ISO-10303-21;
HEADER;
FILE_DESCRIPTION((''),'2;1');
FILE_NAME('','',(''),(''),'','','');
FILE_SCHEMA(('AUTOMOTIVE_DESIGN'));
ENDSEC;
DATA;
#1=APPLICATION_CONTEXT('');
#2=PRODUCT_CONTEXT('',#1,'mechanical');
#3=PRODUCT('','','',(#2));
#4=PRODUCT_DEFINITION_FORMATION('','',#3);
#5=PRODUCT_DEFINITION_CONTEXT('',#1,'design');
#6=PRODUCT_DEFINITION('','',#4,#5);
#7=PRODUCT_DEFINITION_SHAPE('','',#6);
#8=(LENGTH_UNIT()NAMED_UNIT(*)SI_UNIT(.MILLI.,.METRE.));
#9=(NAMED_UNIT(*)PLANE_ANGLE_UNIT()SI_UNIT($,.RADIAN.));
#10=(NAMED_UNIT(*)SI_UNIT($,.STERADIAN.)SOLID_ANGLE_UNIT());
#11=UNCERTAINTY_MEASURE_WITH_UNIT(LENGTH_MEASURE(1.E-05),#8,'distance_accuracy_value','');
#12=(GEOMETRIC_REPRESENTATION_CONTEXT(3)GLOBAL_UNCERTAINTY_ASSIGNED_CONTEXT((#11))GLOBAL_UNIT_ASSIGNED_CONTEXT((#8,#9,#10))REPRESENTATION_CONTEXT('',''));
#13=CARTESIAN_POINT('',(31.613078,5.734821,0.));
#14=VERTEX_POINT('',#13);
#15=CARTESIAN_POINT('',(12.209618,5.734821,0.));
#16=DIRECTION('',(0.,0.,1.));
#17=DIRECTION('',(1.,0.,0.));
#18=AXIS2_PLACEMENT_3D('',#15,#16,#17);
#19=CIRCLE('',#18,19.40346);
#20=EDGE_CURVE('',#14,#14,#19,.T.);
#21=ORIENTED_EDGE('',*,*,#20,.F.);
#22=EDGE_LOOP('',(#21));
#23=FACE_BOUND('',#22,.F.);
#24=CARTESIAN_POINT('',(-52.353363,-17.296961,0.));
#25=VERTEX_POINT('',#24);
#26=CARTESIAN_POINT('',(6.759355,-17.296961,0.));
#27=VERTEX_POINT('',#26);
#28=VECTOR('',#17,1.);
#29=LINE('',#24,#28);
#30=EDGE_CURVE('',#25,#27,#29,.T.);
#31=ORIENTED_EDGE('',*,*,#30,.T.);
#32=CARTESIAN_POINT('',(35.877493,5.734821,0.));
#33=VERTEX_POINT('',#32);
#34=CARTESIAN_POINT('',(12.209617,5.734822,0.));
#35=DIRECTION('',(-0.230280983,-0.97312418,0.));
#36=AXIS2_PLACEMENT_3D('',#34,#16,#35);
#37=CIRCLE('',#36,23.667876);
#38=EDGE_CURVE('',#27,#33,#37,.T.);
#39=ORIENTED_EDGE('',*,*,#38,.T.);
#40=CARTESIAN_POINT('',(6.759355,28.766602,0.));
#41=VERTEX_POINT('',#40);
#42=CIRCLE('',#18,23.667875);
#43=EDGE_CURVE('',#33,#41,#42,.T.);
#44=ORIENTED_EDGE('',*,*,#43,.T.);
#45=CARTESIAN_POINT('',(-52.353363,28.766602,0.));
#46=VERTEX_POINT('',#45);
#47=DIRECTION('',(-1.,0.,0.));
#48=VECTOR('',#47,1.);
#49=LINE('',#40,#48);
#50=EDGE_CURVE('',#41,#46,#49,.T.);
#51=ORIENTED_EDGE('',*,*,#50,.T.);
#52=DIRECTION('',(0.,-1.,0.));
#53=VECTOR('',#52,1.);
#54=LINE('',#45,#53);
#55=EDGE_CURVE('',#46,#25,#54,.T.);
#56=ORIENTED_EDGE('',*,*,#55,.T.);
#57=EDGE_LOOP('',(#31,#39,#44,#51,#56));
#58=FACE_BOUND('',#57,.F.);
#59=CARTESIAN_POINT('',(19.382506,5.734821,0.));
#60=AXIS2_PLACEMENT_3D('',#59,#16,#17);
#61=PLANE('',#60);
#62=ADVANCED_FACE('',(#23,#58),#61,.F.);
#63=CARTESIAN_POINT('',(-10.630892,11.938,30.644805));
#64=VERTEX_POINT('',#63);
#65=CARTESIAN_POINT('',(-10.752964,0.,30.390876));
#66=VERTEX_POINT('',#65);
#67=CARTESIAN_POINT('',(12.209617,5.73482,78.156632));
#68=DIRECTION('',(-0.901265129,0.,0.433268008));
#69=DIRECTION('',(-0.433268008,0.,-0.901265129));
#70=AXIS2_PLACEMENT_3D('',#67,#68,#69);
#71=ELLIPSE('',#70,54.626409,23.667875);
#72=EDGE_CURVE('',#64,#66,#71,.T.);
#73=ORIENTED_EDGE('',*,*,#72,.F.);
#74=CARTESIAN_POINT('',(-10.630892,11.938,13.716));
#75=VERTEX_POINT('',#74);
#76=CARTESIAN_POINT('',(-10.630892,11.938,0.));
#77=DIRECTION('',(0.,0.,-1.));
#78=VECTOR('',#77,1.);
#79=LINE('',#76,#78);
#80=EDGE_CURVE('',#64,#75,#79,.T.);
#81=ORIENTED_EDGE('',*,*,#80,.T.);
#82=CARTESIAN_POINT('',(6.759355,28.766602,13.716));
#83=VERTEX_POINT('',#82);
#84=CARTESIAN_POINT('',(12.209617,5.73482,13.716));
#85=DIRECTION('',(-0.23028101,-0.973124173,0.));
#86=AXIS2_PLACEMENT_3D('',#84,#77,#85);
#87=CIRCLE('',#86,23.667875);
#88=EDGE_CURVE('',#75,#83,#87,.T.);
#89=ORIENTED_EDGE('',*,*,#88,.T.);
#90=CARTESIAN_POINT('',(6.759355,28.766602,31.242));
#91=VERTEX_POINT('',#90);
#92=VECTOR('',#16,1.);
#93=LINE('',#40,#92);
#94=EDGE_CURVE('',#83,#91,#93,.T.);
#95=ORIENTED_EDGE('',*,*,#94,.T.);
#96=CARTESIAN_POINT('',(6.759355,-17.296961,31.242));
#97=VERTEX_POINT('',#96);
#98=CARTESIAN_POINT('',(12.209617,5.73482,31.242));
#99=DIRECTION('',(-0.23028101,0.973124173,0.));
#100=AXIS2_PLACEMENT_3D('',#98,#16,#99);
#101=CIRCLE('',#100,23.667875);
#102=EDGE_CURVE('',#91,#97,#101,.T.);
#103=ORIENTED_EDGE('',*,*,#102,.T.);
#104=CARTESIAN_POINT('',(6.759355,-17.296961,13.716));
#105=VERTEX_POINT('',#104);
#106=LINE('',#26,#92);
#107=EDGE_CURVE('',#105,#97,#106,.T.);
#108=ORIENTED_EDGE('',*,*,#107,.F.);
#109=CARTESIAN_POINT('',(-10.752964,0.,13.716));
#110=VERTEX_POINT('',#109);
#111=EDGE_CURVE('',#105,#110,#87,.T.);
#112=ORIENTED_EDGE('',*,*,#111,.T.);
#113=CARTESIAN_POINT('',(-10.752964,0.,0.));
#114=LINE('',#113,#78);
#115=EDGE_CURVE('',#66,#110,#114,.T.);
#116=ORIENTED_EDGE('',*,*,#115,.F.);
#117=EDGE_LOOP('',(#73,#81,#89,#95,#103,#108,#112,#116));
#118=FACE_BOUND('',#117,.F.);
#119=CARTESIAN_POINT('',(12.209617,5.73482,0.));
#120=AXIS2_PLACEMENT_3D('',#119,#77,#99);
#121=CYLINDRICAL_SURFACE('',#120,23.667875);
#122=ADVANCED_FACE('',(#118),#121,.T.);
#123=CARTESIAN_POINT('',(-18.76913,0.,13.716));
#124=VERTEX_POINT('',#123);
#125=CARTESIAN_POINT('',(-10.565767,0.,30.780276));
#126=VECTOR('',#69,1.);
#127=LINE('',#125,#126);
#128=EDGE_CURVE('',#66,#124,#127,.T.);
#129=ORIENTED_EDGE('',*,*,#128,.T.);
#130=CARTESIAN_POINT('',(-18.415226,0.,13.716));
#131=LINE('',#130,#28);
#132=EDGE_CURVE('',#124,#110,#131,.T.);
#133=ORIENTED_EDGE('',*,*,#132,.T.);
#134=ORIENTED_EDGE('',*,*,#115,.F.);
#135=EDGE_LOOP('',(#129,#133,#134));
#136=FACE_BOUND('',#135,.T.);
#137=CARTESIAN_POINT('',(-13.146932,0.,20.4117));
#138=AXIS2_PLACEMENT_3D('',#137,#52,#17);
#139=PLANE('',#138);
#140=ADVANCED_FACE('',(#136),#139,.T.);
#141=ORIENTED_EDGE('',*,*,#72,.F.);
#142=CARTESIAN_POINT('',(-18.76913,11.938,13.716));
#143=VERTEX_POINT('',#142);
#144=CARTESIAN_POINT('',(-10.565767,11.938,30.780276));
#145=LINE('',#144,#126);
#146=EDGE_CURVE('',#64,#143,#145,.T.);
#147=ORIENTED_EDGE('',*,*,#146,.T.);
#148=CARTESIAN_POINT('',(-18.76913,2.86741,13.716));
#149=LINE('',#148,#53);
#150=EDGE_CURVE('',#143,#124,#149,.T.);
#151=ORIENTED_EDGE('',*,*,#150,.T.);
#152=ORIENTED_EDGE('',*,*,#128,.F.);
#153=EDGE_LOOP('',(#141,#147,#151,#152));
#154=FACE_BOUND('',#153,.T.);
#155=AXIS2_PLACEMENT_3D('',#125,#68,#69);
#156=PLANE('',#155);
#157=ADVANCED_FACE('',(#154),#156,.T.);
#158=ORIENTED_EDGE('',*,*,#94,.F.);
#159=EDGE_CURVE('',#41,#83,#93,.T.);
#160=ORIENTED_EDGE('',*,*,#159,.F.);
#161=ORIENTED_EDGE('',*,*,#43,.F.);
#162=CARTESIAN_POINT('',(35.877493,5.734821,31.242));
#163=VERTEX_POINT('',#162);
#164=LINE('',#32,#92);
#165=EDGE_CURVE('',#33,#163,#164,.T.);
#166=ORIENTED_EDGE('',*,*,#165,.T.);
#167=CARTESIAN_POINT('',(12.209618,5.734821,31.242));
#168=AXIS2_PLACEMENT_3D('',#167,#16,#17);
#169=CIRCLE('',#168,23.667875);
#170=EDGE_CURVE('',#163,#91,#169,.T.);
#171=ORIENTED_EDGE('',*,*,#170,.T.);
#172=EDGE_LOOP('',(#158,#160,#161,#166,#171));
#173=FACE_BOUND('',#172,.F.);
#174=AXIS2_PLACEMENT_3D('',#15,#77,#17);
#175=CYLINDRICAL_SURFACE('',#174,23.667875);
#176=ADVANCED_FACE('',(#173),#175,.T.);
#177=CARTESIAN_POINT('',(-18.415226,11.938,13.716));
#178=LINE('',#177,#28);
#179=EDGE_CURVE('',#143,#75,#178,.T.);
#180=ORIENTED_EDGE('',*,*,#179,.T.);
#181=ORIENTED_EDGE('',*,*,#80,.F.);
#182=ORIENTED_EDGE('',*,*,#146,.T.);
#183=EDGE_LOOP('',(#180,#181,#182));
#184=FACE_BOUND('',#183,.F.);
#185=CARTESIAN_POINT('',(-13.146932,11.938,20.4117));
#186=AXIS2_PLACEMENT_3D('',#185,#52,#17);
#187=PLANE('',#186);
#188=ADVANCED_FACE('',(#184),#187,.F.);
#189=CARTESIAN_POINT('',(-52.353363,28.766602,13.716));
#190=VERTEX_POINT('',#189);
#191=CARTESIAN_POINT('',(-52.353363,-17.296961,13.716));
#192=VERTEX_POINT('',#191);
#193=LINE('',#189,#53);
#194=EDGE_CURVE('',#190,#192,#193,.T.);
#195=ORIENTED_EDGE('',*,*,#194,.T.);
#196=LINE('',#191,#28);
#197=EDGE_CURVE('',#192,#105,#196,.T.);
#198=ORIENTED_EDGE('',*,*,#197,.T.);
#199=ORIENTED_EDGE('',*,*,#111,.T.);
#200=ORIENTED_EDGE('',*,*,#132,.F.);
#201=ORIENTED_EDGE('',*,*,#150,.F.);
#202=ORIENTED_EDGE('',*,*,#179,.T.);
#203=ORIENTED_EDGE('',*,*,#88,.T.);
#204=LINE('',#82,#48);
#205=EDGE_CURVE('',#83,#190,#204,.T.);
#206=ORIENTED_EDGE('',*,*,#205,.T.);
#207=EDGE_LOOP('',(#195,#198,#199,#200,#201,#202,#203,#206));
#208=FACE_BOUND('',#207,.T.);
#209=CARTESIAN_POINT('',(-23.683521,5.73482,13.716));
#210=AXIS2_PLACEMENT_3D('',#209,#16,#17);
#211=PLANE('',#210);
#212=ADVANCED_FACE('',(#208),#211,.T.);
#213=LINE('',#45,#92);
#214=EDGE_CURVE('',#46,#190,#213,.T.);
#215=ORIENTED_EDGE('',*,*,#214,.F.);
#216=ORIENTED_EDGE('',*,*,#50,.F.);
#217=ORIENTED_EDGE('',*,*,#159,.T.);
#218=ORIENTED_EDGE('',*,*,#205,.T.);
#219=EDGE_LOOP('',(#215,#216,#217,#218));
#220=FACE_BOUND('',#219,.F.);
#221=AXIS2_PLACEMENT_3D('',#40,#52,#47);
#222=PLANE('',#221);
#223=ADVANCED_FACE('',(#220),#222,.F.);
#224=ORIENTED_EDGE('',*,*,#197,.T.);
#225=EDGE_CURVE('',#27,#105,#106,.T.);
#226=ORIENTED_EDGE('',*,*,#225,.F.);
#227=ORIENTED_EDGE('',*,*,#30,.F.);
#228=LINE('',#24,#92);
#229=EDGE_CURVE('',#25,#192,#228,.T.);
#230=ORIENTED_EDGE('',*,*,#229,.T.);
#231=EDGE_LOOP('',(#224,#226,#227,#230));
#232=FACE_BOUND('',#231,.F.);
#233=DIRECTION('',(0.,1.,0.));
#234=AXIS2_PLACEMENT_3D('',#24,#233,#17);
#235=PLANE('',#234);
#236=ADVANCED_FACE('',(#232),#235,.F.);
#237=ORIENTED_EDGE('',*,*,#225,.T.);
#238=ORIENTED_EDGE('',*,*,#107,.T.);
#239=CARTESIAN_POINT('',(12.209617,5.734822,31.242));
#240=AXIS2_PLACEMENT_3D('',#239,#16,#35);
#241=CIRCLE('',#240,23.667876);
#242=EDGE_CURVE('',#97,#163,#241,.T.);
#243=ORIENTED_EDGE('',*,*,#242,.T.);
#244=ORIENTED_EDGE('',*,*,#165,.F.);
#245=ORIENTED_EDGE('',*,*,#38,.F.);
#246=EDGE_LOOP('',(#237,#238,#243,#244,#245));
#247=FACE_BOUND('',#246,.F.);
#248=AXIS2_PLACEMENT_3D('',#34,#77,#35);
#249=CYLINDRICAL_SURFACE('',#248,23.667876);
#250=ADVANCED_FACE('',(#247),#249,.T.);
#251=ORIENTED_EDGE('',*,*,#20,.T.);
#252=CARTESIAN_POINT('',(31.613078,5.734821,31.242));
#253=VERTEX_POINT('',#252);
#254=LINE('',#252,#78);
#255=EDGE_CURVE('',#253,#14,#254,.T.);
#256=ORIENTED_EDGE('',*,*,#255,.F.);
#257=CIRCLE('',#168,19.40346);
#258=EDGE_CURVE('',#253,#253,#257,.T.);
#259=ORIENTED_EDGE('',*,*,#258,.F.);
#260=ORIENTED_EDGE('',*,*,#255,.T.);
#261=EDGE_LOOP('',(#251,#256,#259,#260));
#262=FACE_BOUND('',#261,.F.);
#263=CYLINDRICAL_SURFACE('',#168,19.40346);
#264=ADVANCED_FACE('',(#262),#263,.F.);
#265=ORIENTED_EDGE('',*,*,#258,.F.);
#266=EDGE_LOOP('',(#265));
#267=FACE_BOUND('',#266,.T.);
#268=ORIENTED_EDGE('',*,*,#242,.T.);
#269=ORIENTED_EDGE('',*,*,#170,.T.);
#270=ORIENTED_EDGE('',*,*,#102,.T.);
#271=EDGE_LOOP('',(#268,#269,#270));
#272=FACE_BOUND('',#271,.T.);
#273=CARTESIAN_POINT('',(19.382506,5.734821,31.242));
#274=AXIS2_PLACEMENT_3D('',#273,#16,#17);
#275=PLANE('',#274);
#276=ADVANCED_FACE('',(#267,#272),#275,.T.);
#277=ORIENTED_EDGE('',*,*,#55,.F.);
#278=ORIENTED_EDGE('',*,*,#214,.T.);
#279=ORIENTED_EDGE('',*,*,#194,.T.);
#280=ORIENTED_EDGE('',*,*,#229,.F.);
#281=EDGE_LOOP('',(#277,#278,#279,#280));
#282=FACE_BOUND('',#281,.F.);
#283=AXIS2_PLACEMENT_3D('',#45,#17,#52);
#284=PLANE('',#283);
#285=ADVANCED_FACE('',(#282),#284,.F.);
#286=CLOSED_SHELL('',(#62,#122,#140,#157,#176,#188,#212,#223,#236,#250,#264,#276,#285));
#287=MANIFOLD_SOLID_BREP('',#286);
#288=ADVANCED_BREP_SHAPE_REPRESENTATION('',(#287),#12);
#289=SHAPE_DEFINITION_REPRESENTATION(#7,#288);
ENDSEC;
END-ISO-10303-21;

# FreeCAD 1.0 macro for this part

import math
import FreeCAD as App
import Part
import Sketcher

V = App.Vector
Q = App.Units.Quantity


def add_polygon(sketch, points):
    """Adds a closed chain of lines whose ends are joined by coincident constraints."""
    first, n = sketch.GeometryCount, len(points)
    for a, b in zip(points, points[1:] + points[:1]):
        sketch.addGeometry(Part.LineSegment(App.Vector(*a, 0), App.Vector(*b, 0)), False)
    for i in range(n):
        sketch.addConstraint(Sketcher.Constraint("Coincident", first + i, 2, first + (i + 1) % n, 1))

doc = App.newDocument("Part")
body = doc.addObject("PartDesign::Body", "Body")

# Sketch on XY plane
sketch1 = body.newObject("Sketcher::SketchObject", "Sketch")
sketch1.AttachmentSupport = (doc.getObject("XY_Plane"), [""])
sketch1.MapMode = "FlatFace"
sketch1.addGeometry(Part.LineSegment(V(7, 29, 0), V(-52, 29, 0)), False)
sketch1.addGeometry(Part.LineSegment(V(-52, 29, 0), V(-52, -17, 0)), False)
sketch1.addGeometry(Part.LineSegment(V(-52, -17, 0), V(7, -17, 0)), False)
sketch1.addGeometry(Part.ArcOfCircle(Part.Circle(V(12, 6, 0), V(0, 0, 1), 24), math.radians(103), math.radians(257)), False)
sketch1.addConstraint(Sketcher.Constraint("Coincident", 0, 2, 1, 1))
sketch1.addConstraint(Sketcher.Constraint("Coincident", 1, 2, 2, 1))
sketch1.addConstraint(Sketcher.Constraint("Coincident", 2, 2, 3, 2))
sketch1.addConstraint(Sketcher.Constraint("Coincident", 3, 1, 0, 1))
sketch1.addConstraint(Sketcher.Constraint("Horizontal", 0))
sketch1.addConstraint(Sketcher.Constraint("Vertical", 1))
sketch1.addConstraint(Sketcher.Constraint("Horizontal", 2))
sketch1.addConstraint(Sketcher.Constraint("Vertical", 2, 2, 3, 1))
sketch1.addConstraint(Sketcher.Constraint("Radius", 3, 23.667875))
sketch1.addConstraint(Sketcher.Constraint("DistanceY", -1, 1, 0, 2, 28.766602))
sketch1.addConstraint(Sketcher.Constraint("DistanceX", 0, 2, 0, 1, 59.112718))
sketch1.addConstraint(Sketcher.Constraint("DistanceY", 1, 2, 1, 1, 46.063563))
sketch1.addConstraint(Sketcher.Constraint("DistanceX", -1, 1, 3, 3, 12.209617))
pad1 = body.newObject("PartDesign::Pad", "Pad")
pad1.Profile = sketch1
pad1.Length = Q("0.54 in")

# Sketch on XY plane
sketch2 = body.newObject("Sketcher::SketchObject", "Sketch001")
sketch2.AttachmentSupport = (doc.getObject("XY_Plane"), [""])
sketch2.MapMode = "FlatFace"
sketch2.addGeometry(Part.ArcOfCircle(Part.Circle(V(12, 6, 0), V(0, 0, 1), 24), math.radians(0), math.radians(103)), False)
sketch2.addGeometry(Part.ArcOfCircle(Part.Circle(V(12, 6, 0), V(0, 0, 1), 24), math.radians(103), math.radians(257)), False)
sketch2.addGeometry(Part.ArcOfCircle(Part.Circle(V(12, 6, 0), V(0, 0, 1), 24), math.radians(-103), math.radians(0)), False)
sketch2.addConstraint(Sketcher.Constraint("Tangent", 0, 2, 1, 1))
sketch2.addConstraint(Sketcher.Constraint("Tangent", 1, 2, 2, 1))
sketch2.addConstraint(Sketcher.Constraint("Tangent", 2, 2, 0, 1))
sketch2.addConstraint(Sketcher.Constraint("Horizontal", 1, 3, 2, 2))
sketch2.addConstraint(Sketcher.Constraint("Vertical", 0, 2, 1, 2))
sketch2.addConstraint(Sketcher.Constraint("Radius", 0, 23.667875))
sketch2.addConstraint(Sketcher.Constraint("DistanceX", -1, 1, 0, 3, 12.209618))
sketch2.addConstraint(Sketcher.Constraint("DistanceY", -1, 1, 0, 3, 5.734821))
sketch2.addConstraint(Sketcher.Constraint("DistanceY", 1, 2, -1, 1, 17.296961))
pad2 = body.newObject("PartDesign::Pad", "Pad001")
pad2.Profile = sketch2
pad2.Length = Q("1.23 in")

# Sketch on XY plane
sketch3 = body.newObject("Sketcher::SketchObject", "Sketch002")
sketch3.AttachmentSupport = (doc.getObject("XY_Plane"), [""])
sketch3.MapMode = "FlatFace"
sketch3.AttachmentOffset = App.Placement(V(0, 0, 1.23 * 25.4), App.Rotation())
sketch3.addGeometry(Part.Circle(V(12, 6, 0), V(0, 0, 1), 19), False)
sketch3.addConstraint(Sketcher.Constraint("Diameter", 0, 38.80692))
sketch3.addConstraint(Sketcher.Constraint("DistanceX", -1, 1, 0, 3, 12.209618))
sketch3.addConstraint(Sketcher.Constraint("DistanceY", -1, 1, 0, 3, 5.734821))
pocket1 = body.newObject("PartDesign::Pocket", "Pocket")
pocket1.Profile = sketch3
pocket1.Length = Q("1.75 in")

# Sketch on XZ plane
sketch4 = body.newObject("Sketcher::SketchObject", "Sketch003")
sketch4.AttachmentSupport = (doc.getObject("XZ_Plane"), [""])
sketch4.MapMode = "FlatFace"
add_polygon(sketch4, [(-11, 13), (-11, 31), (-19, 13)])  # lines 0-2
sketch4.addConstraint(Sketcher.Constraint("Vertical", 0))
sketch4.addConstraint(Sketcher.Constraint("Horizontal", 2))
sketch4.addConstraint(Sketcher.Constraint("DistanceX", 2, 1, 2, 2, 8.408496))
sketch4.addConstraint(Sketcher.Constraint("DistanceY", 0, 1, 0, 2, 17.490985))
sketch4.addConstraint(Sketcher.Constraint("DistanceY", -1, 1, 1, 2, 13.289291))
sketch4.addConstraint(Sketcher.Constraint("DistanceX", 0, 2, -1, 1, 10.565767))
pad3 = body.newObject("PartDesign::Pad", "Pad002")
pad3.Profile = sketch4
pad3.Length = Q("0.47 in")
pad3.Reversed = True

doc.recompute()
